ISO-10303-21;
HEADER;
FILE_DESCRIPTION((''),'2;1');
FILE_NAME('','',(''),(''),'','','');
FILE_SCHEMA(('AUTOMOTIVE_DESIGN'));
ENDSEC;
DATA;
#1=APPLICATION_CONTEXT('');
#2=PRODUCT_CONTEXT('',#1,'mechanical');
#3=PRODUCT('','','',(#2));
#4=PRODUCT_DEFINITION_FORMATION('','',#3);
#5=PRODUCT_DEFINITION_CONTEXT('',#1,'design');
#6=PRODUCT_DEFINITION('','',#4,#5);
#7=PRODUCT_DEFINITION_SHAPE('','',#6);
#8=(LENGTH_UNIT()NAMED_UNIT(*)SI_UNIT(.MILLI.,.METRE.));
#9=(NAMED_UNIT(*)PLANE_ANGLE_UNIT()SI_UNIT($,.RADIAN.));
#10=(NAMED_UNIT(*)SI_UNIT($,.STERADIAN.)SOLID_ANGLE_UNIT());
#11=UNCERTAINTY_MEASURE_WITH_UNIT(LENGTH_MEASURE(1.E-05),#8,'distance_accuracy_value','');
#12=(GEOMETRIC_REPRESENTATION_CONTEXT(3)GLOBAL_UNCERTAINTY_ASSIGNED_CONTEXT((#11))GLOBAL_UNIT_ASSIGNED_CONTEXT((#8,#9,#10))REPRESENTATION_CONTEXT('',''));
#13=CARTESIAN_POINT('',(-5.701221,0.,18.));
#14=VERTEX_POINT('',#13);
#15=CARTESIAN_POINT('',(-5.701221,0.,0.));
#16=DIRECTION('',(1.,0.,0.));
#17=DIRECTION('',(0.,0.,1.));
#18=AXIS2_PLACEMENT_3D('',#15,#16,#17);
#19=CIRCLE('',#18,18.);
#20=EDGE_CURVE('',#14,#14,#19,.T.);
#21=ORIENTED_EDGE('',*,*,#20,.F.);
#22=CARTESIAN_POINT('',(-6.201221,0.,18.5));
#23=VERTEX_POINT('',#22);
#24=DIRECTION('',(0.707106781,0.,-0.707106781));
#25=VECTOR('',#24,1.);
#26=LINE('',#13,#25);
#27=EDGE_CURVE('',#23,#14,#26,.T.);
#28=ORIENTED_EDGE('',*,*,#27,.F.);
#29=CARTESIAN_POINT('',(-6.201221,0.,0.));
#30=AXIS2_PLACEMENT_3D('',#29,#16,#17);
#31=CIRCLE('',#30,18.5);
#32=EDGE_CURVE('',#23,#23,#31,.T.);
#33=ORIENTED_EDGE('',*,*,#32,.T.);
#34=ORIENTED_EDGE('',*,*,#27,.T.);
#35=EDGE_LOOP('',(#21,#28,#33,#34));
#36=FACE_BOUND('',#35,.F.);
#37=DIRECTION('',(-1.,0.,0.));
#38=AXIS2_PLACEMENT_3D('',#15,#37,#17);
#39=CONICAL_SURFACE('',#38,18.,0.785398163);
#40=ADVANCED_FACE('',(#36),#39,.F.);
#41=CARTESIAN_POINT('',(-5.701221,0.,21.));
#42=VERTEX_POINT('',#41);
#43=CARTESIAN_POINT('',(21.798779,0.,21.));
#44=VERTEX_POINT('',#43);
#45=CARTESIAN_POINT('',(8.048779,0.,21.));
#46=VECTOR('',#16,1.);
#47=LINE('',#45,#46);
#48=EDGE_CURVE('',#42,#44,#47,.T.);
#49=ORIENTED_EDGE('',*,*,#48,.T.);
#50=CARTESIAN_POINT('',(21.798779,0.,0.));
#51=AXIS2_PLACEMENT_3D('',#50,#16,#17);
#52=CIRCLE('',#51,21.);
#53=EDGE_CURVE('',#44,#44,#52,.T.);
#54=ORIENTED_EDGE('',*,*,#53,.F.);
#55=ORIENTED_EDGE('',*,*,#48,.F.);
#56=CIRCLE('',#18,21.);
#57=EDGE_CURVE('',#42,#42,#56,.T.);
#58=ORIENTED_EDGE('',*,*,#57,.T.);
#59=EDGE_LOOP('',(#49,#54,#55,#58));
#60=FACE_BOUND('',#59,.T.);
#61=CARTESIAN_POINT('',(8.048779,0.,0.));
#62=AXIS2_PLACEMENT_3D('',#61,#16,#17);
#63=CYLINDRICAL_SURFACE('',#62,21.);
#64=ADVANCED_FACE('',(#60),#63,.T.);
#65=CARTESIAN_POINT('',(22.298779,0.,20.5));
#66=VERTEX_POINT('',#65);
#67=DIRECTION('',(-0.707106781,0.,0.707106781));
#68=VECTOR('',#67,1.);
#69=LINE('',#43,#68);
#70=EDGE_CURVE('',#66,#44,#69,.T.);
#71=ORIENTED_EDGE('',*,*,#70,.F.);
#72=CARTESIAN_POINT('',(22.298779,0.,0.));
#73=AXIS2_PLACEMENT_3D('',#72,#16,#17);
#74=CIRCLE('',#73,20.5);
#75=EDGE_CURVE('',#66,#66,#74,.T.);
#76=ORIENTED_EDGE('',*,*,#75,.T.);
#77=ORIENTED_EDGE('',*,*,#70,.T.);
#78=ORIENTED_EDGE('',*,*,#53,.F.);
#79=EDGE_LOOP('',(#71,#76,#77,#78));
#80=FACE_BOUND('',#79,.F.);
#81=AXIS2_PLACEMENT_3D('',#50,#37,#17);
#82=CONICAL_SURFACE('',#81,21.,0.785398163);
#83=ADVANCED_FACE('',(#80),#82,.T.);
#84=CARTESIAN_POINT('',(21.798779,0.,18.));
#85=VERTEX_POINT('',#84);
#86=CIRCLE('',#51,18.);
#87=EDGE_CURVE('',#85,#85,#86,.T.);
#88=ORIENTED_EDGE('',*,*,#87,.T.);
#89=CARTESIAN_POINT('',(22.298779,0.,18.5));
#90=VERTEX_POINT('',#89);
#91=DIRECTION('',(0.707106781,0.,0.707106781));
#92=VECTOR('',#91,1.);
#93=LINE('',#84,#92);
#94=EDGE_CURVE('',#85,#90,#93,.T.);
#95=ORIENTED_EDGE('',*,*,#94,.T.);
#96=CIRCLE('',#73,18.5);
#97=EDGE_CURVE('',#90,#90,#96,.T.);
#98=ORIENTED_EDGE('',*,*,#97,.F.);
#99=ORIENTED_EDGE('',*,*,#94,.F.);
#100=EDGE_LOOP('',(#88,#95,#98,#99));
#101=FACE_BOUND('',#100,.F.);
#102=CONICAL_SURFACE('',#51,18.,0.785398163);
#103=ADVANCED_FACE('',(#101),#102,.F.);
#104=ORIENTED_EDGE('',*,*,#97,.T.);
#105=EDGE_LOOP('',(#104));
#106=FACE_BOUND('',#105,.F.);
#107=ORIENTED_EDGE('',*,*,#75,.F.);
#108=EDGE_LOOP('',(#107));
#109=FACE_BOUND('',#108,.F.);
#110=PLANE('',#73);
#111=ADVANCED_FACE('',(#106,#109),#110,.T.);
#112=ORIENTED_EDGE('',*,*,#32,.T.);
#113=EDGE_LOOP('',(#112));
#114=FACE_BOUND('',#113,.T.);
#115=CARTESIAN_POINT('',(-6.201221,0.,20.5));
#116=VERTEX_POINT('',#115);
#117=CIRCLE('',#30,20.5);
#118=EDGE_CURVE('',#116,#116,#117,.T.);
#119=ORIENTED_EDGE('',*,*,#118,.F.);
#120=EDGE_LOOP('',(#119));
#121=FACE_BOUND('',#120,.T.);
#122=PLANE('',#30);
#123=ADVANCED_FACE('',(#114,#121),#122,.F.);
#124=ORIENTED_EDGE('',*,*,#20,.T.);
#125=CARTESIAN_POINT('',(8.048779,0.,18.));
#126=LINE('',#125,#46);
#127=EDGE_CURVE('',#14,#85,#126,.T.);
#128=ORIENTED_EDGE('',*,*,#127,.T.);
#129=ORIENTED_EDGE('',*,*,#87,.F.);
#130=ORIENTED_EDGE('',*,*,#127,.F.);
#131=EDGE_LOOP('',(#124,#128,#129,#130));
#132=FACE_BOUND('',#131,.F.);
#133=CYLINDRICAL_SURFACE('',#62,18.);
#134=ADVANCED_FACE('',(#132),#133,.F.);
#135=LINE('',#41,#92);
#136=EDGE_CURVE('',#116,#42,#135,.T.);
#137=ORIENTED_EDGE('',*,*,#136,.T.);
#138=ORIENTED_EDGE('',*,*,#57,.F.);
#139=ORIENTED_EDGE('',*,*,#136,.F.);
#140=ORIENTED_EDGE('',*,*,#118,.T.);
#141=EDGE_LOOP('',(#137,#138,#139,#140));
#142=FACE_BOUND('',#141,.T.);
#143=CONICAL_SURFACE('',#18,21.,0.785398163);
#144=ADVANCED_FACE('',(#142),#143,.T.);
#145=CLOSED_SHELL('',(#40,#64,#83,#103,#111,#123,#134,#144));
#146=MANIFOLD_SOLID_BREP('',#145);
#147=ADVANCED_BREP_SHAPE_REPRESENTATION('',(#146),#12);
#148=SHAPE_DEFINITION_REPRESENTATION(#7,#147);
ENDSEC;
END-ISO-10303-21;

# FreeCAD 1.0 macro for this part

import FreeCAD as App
import Part
import Sketcher

V = App.Vector
Q = App.Units.Quantity

doc = App.newDocument("Part")
body = doc.addObject("PartDesign::Body", "Body")

sketch1 = body.newObject("Sketcher::SketchObject", "Sketch")
sketch1.AttachmentSupport = (doc.getObject("XZ_Plane"), [""])
sketch1.MapMode = "FlatFace"
sketch1.addGeometry(Part.LineSegment(V(-6.2, 21, 0), V(-6.2, 18, 0)), False)
sketch1.addGeometry(Part.LineSegment(V(-6.2, 18, 0), V(22.3, 18, 0)), False)
sketch1.addGeometry(Part.LineSegment(V(22.3, 18, 0), V(22.3, 21, 0)), False)
sketch1.addGeometry(Part.LineSegment(V(22.3, 21, 0), V(-6.2, 21, 0)), False)
sketch1.addConstraint(Sketcher.Constraint("Coincident", 0, 2, 1, 1))
sketch1.addConstraint(Sketcher.Constraint("Coincident", 1, 2, 2, 1))
sketch1.addConstraint(Sketcher.Constraint("Coincident", 2, 2, 3, 1))
sketch1.addConstraint(Sketcher.Constraint("Coincident", 3, 2, 0, 1))
sketch1.addConstraint(Sketcher.Constraint("Vertical", 0))
sketch1.addConstraint(Sketcher.Constraint("Horizontal", 1))
sketch1.addConstraint(Sketcher.Constraint("Vertical", 2))
sketch1.addConstraint(Sketcher.Constraint("Horizontal", 3))
sketch1.addConstraint(Sketcher.Constraint("DistanceY", 0, 2, 0, 1, Q("3 mm")))
sketch1.addConstraint(Sketcher.Constraint("DistanceX", 1, 1, 1, 2, Q("28.5 mm")))
sketch1.addConstraint(Sketcher.Constraint("DistanceY", -1, 1, 0, 2, Q("18 mm")))
sketch1.addConstraint(Sketcher.Constraint("DistanceX", 0, 2, -1, 1, Q("6.201221 mm")))
revolution = body.newObject("PartDesign::Revolution", "Revolution")
revolution.Profile = sketch1
revolution.ReferenceAxis = (sketch1, ["H_Axis"])
revolution.Angle = 360
doc.recompute()

chamfer = body.newObject("PartDesign::Chamfer", "Chamfer")
chamfer.Base = (revolution, ["Edge1"])
chamfer.UseAllEdges = True
chamfer.Size = 0.5

doc.recompute()
